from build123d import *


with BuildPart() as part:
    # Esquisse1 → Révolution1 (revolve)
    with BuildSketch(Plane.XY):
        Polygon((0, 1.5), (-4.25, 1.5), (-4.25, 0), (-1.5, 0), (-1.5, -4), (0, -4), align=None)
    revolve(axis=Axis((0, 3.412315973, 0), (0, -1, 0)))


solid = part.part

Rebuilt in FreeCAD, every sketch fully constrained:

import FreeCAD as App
import Part
import Sketcher
from FreeCAD import Vector

doc = App.newDocument("Part")
body = doc.addObject("PartDesign::Body", "Body")

# Sketch on XY plane
sketch1 = body.newObject("Sketcher::SketchObject", "Sketch")
sketch1.AttachmentSupport = (doc.getObject("XY_Plane"), [""])
sketch1.MapMode = "FlatFace"
sketch1.addGeometry([
    Part.LineSegment(Vector(0, 1.5, 0), Vector(-4.25, 1.5, 0)),  # 0
    Part.LineSegment(Vector(-4.25, 1.5, 0), Vector(-4.25, 0, 0)),  # 1
    Part.LineSegment(Vector(-4.25, 0, 0), Vector(-1.5, 0, 0)),  # 2
    Part.LineSegment(Vector(-1.5, 0, 0), Vector(-1.5, -4, 0)),  # 3
    Part.LineSegment(Vector(-1.5, -4, 0), Vector(0, -4, 0)),  # 4
    Part.LineSegment(Vector(0, -4, 0), Vector(0, 1.5, 0)),  # 5
], False)
sketch1.addConstraint([
    Sketcher.Constraint("Coincident", 0, 2, 1, 1),
    Sketcher.Constraint("Coincident", 1, 2, 2, 1),
    Sketcher.Constraint("Coincident", 2, 2, 3, 1),
    Sketcher.Constraint("Coincident", 3, 2, 4, 1),
    Sketcher.Constraint("Coincident", 4, 2, 5, 1),
    Sketcher.Constraint("Coincident", 5, 2, 0, 1),
    Sketcher.Constraint("Horizontal", 0),
    Sketcher.Constraint("Vertical", 1),
    Sketcher.Constraint("Horizontal", 2),
    Sketcher.Constraint("Vertical", 3),
    Sketcher.Constraint("Horizontal", 4),
    Sketcher.Constraint("Vertical", 5),
    Sketcher.Constraint("PointOnObject", 1, 2, -1),
    Sketcher.Constraint("PointOnObject", 4, 2, -2),
    Sketcher.Constraint("Equal", 4, 1),
    Sketcher.Constraint("DistanceY", 3, 2, 3, 1, 4.0),
    Sketcher.Constraint("DistanceX", 4, 1, 4, 2, 1.5),
    Sketcher.Constraint("DistanceX", 0, 2, 0, 1, 4.25),
])
revolution = body.newObject("PartDesign::Revolution", "Revolution")
revolution.Profile = sketch1
revolution.ReferenceAxis = (sketch1, ["V_Axis"])
revolution.Angle = 360

doc.recompute()
